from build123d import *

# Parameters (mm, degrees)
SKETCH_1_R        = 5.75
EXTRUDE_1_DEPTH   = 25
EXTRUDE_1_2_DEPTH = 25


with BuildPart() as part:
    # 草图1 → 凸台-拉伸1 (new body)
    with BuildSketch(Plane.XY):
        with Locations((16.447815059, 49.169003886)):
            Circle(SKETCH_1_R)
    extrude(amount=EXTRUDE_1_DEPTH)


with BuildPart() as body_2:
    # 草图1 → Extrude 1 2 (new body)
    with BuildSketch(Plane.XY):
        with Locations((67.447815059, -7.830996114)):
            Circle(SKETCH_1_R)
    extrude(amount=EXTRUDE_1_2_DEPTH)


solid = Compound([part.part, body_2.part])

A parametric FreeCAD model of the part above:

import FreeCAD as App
import Part
import Sketcher
from FreeCAD import Vector
Q = App.Units.Quantity

doc = App.newDocument("Part")
body = doc.addObject("PartDesign::Body", "Body")

sketch1 = body.newObject("Sketcher::SketchObject", "Sketch")
sketch1.AttachmentSupport = (doc.getObject("XY_Plane"), [""])
sketch1.MapMode = "FlatFace"
sketch1.addGeometry(Part.Circle(Vector(16, 49, 0), Vector(0, 0, 1), 6), False)
sketch1.addConstraint([
    Sketcher.Constraint("Diameter", 0, Q("11.5 mm")),
    Sketcher.Constraint("DistanceX", -1, 1, 0, 3, Q("16.447815 mm")),
    Sketcher.Constraint("DistanceY", -1, 1, 0, 3, Q("49.169004 mm")),
])
pad1 = body.newObject("PartDesign::Pad", "Pad")
pad1.Profile = sketch1
pad1.Length = 25
body2 = doc.addObject("PartDesign::Body", "Body001")

sketch2 = body2.newObject("Sketcher::SketchObject", "Sketch001")
sketch2.AttachmentSupport = (doc.getObject("XY_Plane001"), [""])
sketch2.MapMode = "FlatFace"
sketch2.addGeometry(Part.Circle(Vector(67, -8, 0), Vector(0, 0, 1), 6), False)
sketch2.addConstraint([
    Sketcher.Constraint("Diameter", 0, Q("11.5 mm")),
    Sketcher.Constraint("DistanceX", -1, 1, 0, 3, Q("67.447815 mm")),
    Sketcher.Constraint("DistanceY", 0, 3, -1, 1, Q("7.830996 mm")),
])
pad2 = body2.newObject("PartDesign::Pad", "Pad001")
pad2.Profile = sketch2
pad2.Length = 25

doc.recompute()
